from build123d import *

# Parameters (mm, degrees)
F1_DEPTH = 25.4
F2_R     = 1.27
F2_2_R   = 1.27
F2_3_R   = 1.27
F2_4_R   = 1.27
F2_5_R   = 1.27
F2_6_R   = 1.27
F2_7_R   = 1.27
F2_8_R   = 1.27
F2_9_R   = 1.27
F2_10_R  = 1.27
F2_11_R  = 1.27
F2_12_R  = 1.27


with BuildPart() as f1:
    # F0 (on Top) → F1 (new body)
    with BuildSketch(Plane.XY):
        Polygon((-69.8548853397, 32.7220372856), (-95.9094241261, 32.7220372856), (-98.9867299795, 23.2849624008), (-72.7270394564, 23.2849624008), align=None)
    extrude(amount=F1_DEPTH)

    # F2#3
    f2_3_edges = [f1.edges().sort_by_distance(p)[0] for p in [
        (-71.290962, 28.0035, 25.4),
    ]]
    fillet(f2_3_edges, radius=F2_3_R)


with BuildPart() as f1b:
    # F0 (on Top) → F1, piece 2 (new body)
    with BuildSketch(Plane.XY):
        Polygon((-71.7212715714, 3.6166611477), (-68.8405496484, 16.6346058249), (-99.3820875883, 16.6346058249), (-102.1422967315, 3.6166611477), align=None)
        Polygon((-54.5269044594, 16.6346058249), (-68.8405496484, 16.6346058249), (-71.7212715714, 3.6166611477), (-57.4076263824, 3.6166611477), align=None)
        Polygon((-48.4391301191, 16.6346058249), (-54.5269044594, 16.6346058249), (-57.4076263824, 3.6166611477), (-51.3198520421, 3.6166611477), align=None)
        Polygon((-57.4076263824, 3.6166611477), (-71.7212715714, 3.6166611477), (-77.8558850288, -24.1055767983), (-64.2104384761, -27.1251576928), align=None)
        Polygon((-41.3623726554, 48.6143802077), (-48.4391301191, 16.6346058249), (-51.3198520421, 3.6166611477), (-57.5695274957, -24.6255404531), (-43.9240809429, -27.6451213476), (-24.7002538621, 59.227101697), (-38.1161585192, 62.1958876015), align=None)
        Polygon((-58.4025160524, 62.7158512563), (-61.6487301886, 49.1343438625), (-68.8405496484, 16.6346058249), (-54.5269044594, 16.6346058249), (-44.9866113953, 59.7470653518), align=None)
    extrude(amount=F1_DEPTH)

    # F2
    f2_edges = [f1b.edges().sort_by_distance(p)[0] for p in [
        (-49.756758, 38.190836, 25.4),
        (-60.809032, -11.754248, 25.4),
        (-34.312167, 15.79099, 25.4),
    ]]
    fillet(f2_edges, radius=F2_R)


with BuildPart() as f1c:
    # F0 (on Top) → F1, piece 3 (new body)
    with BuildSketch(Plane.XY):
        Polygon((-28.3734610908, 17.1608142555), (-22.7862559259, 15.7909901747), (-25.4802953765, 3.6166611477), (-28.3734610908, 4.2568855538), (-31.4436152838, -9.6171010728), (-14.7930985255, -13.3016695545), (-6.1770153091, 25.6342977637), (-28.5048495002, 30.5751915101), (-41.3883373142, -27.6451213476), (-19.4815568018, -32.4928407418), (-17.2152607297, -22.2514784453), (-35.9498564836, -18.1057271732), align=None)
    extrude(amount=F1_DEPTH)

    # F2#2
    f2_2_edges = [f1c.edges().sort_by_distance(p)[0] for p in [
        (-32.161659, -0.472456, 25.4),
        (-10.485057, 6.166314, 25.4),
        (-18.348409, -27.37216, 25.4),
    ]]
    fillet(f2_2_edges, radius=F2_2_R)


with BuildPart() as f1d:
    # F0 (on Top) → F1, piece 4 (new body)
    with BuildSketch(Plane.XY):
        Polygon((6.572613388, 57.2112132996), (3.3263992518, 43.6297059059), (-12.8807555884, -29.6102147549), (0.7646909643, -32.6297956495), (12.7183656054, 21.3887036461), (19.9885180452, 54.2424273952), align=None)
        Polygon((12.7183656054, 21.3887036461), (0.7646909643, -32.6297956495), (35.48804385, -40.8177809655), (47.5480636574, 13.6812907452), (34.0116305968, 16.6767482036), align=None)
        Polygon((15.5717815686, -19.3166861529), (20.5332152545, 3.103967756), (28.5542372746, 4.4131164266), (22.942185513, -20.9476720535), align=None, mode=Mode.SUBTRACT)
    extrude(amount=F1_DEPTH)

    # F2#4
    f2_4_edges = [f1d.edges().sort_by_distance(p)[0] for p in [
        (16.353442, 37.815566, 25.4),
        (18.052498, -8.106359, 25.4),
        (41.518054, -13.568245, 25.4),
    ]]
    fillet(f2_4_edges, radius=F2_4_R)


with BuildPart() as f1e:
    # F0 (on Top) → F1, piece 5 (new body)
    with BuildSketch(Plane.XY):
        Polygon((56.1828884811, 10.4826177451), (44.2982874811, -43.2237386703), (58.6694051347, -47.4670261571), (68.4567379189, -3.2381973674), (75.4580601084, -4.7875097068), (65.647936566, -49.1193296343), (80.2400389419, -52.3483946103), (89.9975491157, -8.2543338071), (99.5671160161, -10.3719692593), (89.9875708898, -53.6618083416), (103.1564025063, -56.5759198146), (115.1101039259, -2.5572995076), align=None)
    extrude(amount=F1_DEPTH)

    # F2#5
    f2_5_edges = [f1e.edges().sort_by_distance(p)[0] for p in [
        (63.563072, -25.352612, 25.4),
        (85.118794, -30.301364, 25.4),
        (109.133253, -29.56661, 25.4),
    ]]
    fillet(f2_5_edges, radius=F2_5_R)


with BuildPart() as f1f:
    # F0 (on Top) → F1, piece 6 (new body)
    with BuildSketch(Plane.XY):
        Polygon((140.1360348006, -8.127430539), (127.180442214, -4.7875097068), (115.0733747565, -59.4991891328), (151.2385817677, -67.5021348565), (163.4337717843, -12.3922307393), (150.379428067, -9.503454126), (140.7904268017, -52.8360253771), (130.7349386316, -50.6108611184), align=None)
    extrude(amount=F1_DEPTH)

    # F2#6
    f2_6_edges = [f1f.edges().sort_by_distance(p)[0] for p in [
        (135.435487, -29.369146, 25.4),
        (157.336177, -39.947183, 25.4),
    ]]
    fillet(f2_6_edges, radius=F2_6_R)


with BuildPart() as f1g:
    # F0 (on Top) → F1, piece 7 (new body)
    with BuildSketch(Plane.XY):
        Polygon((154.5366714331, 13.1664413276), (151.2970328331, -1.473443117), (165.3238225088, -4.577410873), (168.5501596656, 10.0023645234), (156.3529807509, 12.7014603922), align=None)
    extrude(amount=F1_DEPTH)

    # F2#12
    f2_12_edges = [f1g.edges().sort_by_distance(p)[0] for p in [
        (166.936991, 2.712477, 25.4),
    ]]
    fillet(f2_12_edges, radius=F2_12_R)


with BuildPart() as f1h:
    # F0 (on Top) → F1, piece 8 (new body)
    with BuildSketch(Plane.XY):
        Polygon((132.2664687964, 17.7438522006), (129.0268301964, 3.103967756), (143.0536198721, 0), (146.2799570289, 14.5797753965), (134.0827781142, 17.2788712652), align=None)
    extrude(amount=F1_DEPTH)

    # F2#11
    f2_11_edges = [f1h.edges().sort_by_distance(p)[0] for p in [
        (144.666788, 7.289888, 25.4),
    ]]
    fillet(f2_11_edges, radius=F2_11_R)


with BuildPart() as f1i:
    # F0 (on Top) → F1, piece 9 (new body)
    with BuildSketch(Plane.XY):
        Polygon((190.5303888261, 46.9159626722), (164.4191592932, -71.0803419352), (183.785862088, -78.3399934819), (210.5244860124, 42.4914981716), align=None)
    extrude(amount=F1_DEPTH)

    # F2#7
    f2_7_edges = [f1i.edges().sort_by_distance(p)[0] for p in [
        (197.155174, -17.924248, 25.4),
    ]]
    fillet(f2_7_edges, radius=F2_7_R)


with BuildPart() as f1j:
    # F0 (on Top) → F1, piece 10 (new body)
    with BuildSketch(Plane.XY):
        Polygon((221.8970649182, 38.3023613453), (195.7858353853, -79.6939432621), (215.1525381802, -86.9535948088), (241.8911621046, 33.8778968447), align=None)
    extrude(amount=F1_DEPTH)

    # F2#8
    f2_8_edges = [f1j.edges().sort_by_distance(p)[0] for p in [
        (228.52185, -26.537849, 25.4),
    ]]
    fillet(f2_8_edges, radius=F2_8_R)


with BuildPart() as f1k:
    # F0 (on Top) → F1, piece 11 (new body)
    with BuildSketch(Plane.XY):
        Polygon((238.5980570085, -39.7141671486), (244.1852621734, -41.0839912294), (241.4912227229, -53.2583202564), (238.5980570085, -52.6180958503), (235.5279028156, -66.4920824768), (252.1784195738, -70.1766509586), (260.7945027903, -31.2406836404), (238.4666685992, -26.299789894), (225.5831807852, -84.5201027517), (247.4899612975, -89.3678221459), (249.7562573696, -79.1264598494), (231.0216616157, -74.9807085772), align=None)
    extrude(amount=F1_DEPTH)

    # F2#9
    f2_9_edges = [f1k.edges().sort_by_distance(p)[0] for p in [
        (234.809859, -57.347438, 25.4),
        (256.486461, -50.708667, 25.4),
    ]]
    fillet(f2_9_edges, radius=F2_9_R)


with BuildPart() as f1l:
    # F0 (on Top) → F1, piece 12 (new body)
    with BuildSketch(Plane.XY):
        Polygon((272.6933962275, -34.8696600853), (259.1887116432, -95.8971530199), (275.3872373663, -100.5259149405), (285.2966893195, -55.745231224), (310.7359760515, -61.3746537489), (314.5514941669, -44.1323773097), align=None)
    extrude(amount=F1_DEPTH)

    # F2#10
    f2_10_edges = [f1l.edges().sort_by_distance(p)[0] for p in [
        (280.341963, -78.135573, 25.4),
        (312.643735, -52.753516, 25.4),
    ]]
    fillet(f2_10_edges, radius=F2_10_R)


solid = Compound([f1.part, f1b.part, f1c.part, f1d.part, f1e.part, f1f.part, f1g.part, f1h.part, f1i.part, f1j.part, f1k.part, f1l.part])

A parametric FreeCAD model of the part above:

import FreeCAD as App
import Part
import Sketcher
Q = App.Units.Quantity


def edges_at(feature, points):
    """Names of the edges that pass closest to the given points."""
    edges = feature.Shape.Edges
    near = lambda p: min(range(len(edges)), key=lambda i: edges[i].distToShape(Part.Vertex(*p))[0])
    return sorted({f"Edge{near(p) + 1}" for p in points})


def add_polygon(sketch, points):
    """Adds a closed chain of lines whose ends are joined by coincident constraints."""
    first, n = sketch.GeometryCount, len(points)
    for a, b in zip(points, points[1:] + points[:1]):
        sketch.addGeometry(Part.LineSegment(App.Vector(*a, 0), App.Vector(*b, 0)), False)
    for i in range(n):
        sketch.addConstraint(Sketcher.Constraint("Coincident", first + i, 2, first + (i + 1) % n, 1))

doc = App.newDocument("Part")
params = doc.addObject("Spreadsheet::Sheet", "Params")
for row, (alias, value) in enumerate([
    ("pad1_length", "1 in"),
    ("fillet_radius", "0.05 in"),
    ("pad2_length", "1 in"),
    ("fillet2_radius", "0.05 in"),
    ("pad3_length", "1 in"),
    ("fillet3_radius", "0.05 in"),
    ("pad4_length", "1 in"),
    ("fillet4_radius", "0.05 in"),
    ("pad5_length", "1 in"),
    ("fillet5_radius", "0.05 in"),
    ("pad6_length", "1 in"),
    ("fillet6_radius", "0.05 in"),
    ("pad7_length", "1 in"),
    ("fillet7_radius", "0.05 in"),
    ("pad8_length", "1 in"),
    ("fillet8_radius", "0.05 in"),
    ("pad9_length", "1 in"),
    ("fillet9_radius", "0.05 in"),
    ("pad10_length", "1 in"),
    ("fillet10_radius", "0.05 in"),
    ("pad11_length", "1 in"),
    ("fillet11_radius", "0.05 in"),
    ("pad12_length", "1 in"),
    ("fillet12_radius", "0.05 in"),
], start=1):
    params.set(f"A{row}", alias)
    params.set(f"B{row}", "=" + value)
    params.setAlias(f"B{row}", alias)

body = doc.addObject("PartDesign::Body", "Body")

# Sketch on XY plane
sketch1 = body.newObject("Sketcher::SketchObject", "Sketch")
sketch1.AttachmentSupport = (doc.getObject("XY_Plane"), [""])
sketch1.MapMode = "FlatFace"
add_polygon(sketch1, [(-70, 33), (-96, 33), (-99, 23), (-73, 23)])  # lines 0-3
sketch1.addConstraint(Sketcher.Constraint("Horizontal", 0))
sketch1.addConstraint(Sketcher.Constraint("Horizontal", 2))
sketch1.addConstraint(Sketcher.Constraint("DistanceX", 0, 2, 0, 1, Q("26.054539 mm")))
sketch1.addConstraint(Sketcher.Constraint("DistanceX", 2, 1, 2, 2, Q("26.259691 mm")))
sketch1.addConstraint(Sketcher.Constraint("DistanceX", 1, 2, -1, 1, Q("98.98673 mm")))
sketch1.addConstraint(Sketcher.Constraint("Distance", 1, Q("9.926137 mm")))
sketch1.addConstraint(Sketcher.Constraint("Distance", 3, Q("9.864464 mm")))
sketch1.addConstraint(Sketcher.Constraint("DistanceY", -1, 1, 0, 2, Q("32.722037 mm")))
pad1 = body.newObject("PartDesign::Pad", "Pad")
pad1.Profile = sketch1
pad1.setExpression("Length", "Params.pad1_length")
doc.recompute()

fillet = body.newObject("PartDesign::Fillet", "Fillet")
fillet.Base = (pad1, edges_at(pad1, [(-71.291, 28.003, 25.4)]))
fillet.setExpression("Radius", "Params.fillet_radius")
body2 = doc.addObject("PartDesign::Body", "Body001")

# Sketch on XY plane
sketch2 = body2.newObject("Sketcher::SketchObject", "Sketch001")
sketch2.AttachmentSupport = (doc.getObject("XY_Plane001"), [""])
sketch2.MapMode = "FlatFace"
add_polygon(sketch2, [(-99.382088, 16.634606), (-102.142297, 3.616661), (-71.721272, 3.616661), (-77.855885, -24.105577), (-64.210438, -27.125158), (-57.407626, 3.616661), (-51.319852, 3.616661), (-57.569527, -24.62554), (-43.924081, -27.645121), (-24.700254, 59.227102), (-38.116159, 62.195888), (-41.362373, 48.61438), (-48.43913, 16.634606), (-54.526904, 16.634606), (-44.986611, 59.747065), (-58.402516, 62.715851), (-61.64873, 49.134344), (-68.84055, 16.634606)])  # lines 0-17
sketch2.addConstraint(Sketcher.Constraint("Horizontal", 1))
sketch2.addConstraint(Sketcher.Constraint("Horizontal", 5))
sketch2.addConstraint(Sketcher.Constraint("Horizontal", 12))
sketch2.addConstraint(Sketcher.Constraint("Horizontal", 17))
sketch2.addConstraint(Sketcher.Constraint("Perpendicular", 2, 3))
sketch2.addConstraint(Sketcher.Constraint("Perpendicular", 3, 4))
sketch2.addConstraint(Sketcher.Constraint("Parallel", 4, 6))
sketch2.addConstraint(Sketcher.Constraint("Perpendicular", 6, 7))
sketch2.addConstraint(Sketcher.Constraint("Perpendicular", 7, 8))
sketch2.addConstraint(Sketcher.Constraint("Perpendicular", 8, 9))
sketch2.addConstraint(Sketcher.Constraint("Perpendicular", 9, 11))
sketch2.addConstraint(Sketcher.Constraint("Parallel", 11, 13))
sketch2.addConstraint(Sketcher.Constraint("Perpendicular", 13, 14))
sketch2.addConstraint(Sketcher.Constraint("Parallel", 10, 15))
sketch2.addConstraint(Sketcher.Constraint("Perpendicular", 14, 16))
sketch2.addConstraint(Sketcher.Constraint("Horizontal", 1, 2, 4, 2))
sketch2.addConstraint(Sketcher.Constraint("Horizontal", 12, 2, 16, 2))
sketch2.addConstraint(Sketcher.Constraint("Equal", 5, 12))
sketch2.addConstraint(Sketcher.Constraint("Equal", 3, 7))
sketch2.addConstraint(Sketcher.Constraint("Equal", 9, 14))
sketch2.addConstraint(Sketcher.Constraint("Equal", 10, 15))
sketch2.addConstraint(Sketcher.Constraint("DistanceY", -1, 1, 8, 2, Q("59.227102 mm")))
sketch2.addConstraint(Sketcher.Constraint("DistanceX", 6, 2, 4, 2, Q("0.161901 mm")))
sketch2.addConstraint(Sketcher.Constraint("DistanceY", 6, 2, 4, 2, Q("28.242202 mm")))
sketch2.addConstraint(Sketcher.Constraint("DistanceX", 5, 2, 8, 2, Q("26.619598 mm")))
sketch2.addConstraint(Sketcher.Constraint("DistanceX", 1, 2, 10, 2, Q("30.358899 mm")))
sketch2.addConstraint(Sketcher.Constraint("Distance", 6, Q("28.925428 mm")))
sketch2.addConstraint(Sketcher.Constraint("Distance", 8, Q("88.973809 mm")))
sketch2.addConstraint(Sketcher.Constraint("Distance", 9, Q("13.740458 mm")))
sketch2.addConstraint(Sketcher.Constraint("Distance", 10, Q("13.96407 mm")))
sketch2.addConstraint(Sketcher.Constraint("Distance", 11, Q("32.753419 mm")))
sketch2.addConstraint(Sketcher.Constraint("Distance", 16, Q("33.285962 mm")))
sketch2.addConstraint(Sketcher.Constraint("DistanceX", 1, 1, 1, 2, Q("30.421025 mm")))
sketch2.addConstraint(Sketcher.Constraint("DistanceX", 17, 2, 17, 1, Q("30.541538 mm")))
sketch2.addConstraint(Sketcher.Constraint("DistanceX", 1, 2, -1, 1, Q("71.721272 mm")))
sketch2.addConstraint(Sketcher.Constraint("DistanceX", 3, 2, -1, 1, Q("64.210438 mm")))
pad2 = body2.newObject("PartDesign::Pad", "Pad001")
pad2.Profile = sketch2
pad2.setExpression("Length", "Params.pad2_length")
doc.recompute()

fillet2 = body2.newObject("PartDesign::Fillet", "Fillet001")
fillet2.Base = (pad2, edges_at(pad2, [(-49.757, 38.191, 25.4), (-60.809, -11.754, 25.4), (-34.312, 15.791, 25.4)]))
fillet2.setExpression("Radius", "Params.fillet2_radius")
body3 = doc.addObject("PartDesign::Body", "Body002")

# Sketch on XY plane
sketch3 = body3.newObject("Sketcher::SketchObject", "Sketch002")
sketch3.AttachmentSupport = (doc.getObject("XY_Plane002"), [""])
sketch3.MapMode = "FlatFace"
add_polygon(sketch3, [(-28.4, 17.2), (-22.8, 15.8), (-25.5, 3.6), (-28.4, 4.3), (-31.4, -9.6), (-14.8, -13.3), (-6.2, 25.6), (-28.5, 30.6), (-41.4, -27.6), (-19.5, -32.5), (-17.2, -22.3), (-35.9, -18.1)])  # lines 0-11
sketch3.addConstraint(Sketcher.Constraint("Perpendicular", 1, 2))
sketch3.addConstraint(Sketcher.Constraint("Perpendicular", 2, 3))
sketch3.addConstraint(Sketcher.Constraint("Perpendicular", 3, 4))
sketch3.addConstraint(Sketcher.Constraint("Perpendicular", 4, 5))
sketch3.addConstraint(Sketcher.Constraint("Perpendicular", 5, 6))
sketch3.addConstraint(Sketcher.Constraint("Perpendicular", 6, 7))
sketch3.addConstraint(Sketcher.Constraint("Perpendicular", 7, 8))
sketch3.addConstraint(Sketcher.Constraint("Perpendicular", 8, 9))
sketch3.addConstraint(Sketcher.Constraint("Perpendicular", 9, 10))
sketch3.addConstraint(Sketcher.Constraint("Vertical", 2, 2, 11, 2))
sketch3.addConstraint(Sketcher.Constraint("DistanceY", 3, 2, -1, 1, Q("9.617101 mm")))
sketch3.addConstraint(Sketcher.Constraint("DistanceX", 4, 2, -1, 1, Q("14.793099 mm")))
sketch3.addConstraint(Sketcher.Constraint("DistanceX", 3, 2, 5, 2, Q("25.2666 mm")))
sketch3.addConstraint(Sketcher.Constraint("DistanceY", 3, 2, 5, 2, Q("35.251399 mm")))
sketch3.addConstraint(Sketcher.Constraint("DistanceY", 0, 2, 6, 2, Q("14.784201 mm")))
sketch3.addConstraint(Sketcher.Constraint("DistanceY", 8, 2, 1, 2, Q("36.109502 mm")))
sketch3.addConstraint(Sketcher.Constraint("DistanceX", 10, 2, 8, 2, Q("16.4683 mm")))
sketch3.addConstraint(Sketcher.Constraint("Distance", 3, Q("14.209622 mm")))
sketch3.addConstraint(Sketcher.Constraint("Distance", 4, Q("17.053321 mm")))
sketch3.addConstraint(Sketcher.Constraint("Distance", 7, Q("59.628761 mm")))
sketch3.addConstraint(Sketcher.Constraint("Distance", 9, Q("10.489118 mm")))
sketch3.addConstraint(Sketcher.Constraint("Distance", 11, Q("36.071189 mm")))
sketch3.addConstraint(Sketcher.Constraint("DistanceY", -1, 1, 0, 2, Q("15.79099 mm")))
sketch3.addConstraint(Sketcher.Constraint("DistanceY", -1, 1, 1, 2, Q("3.616661 mm")))
pad3 = body3.newObject("PartDesign::Pad", "Pad002")
pad3.Profile = sketch3
pad3.setExpression("Length", "Params.pad3_length")
doc.recompute()

fillet3 = body3.newObject("PartDesign::Fillet", "Fillet002")
fillet3.Base = (pad3, edges_at(pad3, [(-32.162, -0.472, 25.4), (-10.485, 6.166, 25.4), (-18.348, -27.372, 25.4)]))
fillet3.setExpression("Radius", "Params.fillet3_radius")
body4 = doc.addObject("PartDesign::Body", "Body003")

# Sketch on XY plane
sketch4 = body4.newObject("Sketcher::SketchObject", "Sketch003")
sketch4.AttachmentSupport = (doc.getObject("XY_Plane003"), [""])
sketch4.MapMode = "FlatFace"
add_polygon(sketch4, [(7, 57), (3, 44), (-13, -30), (1, -33), (35, -41), (48, 14), (13, 21), (20, 54)])  # lines 0-7
add_polygon(sketch4, [(23, -21), (16, -19), (21, 3), (29, 4)])  # lines 8-11
sketch4.addConstraint(Sketcher.Constraint("Perpendicular", 1, 2))
sketch4.addConstraint(Sketcher.Constraint("Perpendicular", 2, 4))
sketch4.addConstraint(Sketcher.Constraint("Perpendicular", 4, 5))
sketch4.addConstraint(Sketcher.Constraint("Perpendicular", 5, 6))
sketch4.addConstraint(Sketcher.Constraint("Perpendicular", 6, 7))
sketch4.addConstraint(Sketcher.Constraint("Parallel", 7, 8))
sketch4.addConstraint(Sketcher.Constraint("Perpendicular", 8, 9))
sketch4.addConstraint(Sketcher.Constraint("Parallel", 9, 11))
sketch4.addConstraint(Sketcher.Constraint("DistanceX", -1, 1, 0, 2, Q("3.326399 mm")))
sketch4.addConstraint(Sketcher.Constraint("DistanceY", 2, 2, 0, 2, Q("76.259502 mm")))
sketch4.addConstraint(Sketcher.Constraint("DistanceX", 1, 2, 3, 2, Q("48.368799 mm")))
sketch4.addConstraint(Sketcher.Constraint("DistanceX", 5, 2, 4, 2, Q("34.829698 mm")))
sketch4.addConstraint(Sketcher.Constraint("DistanceY", 2, 2, 5, 2, Q("54.018499 mm")))
sketch4.addConstraint(Sketcher.Constraint("Distance", 0, Q("13.96407 mm")))
sketch4.addConstraint(Sketcher.Constraint("Distance", 1, Q("75.011718 mm")))
sketch4.addConstraint(Sketcher.Constraint("Distance", 6, Q("33.648511 mm")))
sketch4.addConstraint(Sketcher.Constraint("Distance", 7, Q("13.740458 mm")))
sketch4.addConstraint(Sketcher.Constraint("Distance", 11, Q("25.974309 mm")))
sketch4.addConstraint(Sketcher.Constraint("DistanceX", -1, 1, 2, 2, Q("0.764691 mm")))
sketch4.addConstraint(Sketcher.Constraint("DistanceY", 3, 2, -1, 1, Q("40.817781 mm")))
sketch4.addConstraint(Sketcher.Constraint("DistanceX", -1, 1, 8, 2, Q("15.571782 mm")))
sketch4.addConstraint(Sketcher.Constraint("DistanceY", 2, 2, 8, 2, Q("13.313109 mm")))
sketch4.addConstraint(Sketcher.Constraint("DistanceX", 5, 2, 9, 2, Q("7.81485 mm")))
sketch4.addConstraint(Sketcher.Constraint("DistanceY", 9, 2, 10, 2, Q("1.309149 mm")))
pad4 = body4.newObject("PartDesign::Pad", "Pad003")
pad4.Profile = sketch4
pad4.setExpression("Length", "Params.pad4_length")
doc.recompute()

fillet4 = body4.newObject("PartDesign::Fillet", "Fillet003")
fillet4.Base = (pad4, edges_at(pad4, [(16.353, 37.816, 25.4), (18.052, -8.106, 25.4), (41.518, -13.568, 25.4)]))
fillet4.setExpression("Radius", "Params.fillet4_radius")
body5 = doc.addObject("PartDesign::Body", "Body004")

# Sketch on XY plane
sketch5 = body5.newObject("Sketcher::SketchObject", "Sketch004")
sketch5.AttachmentSupport = (doc.getObject("XY_Plane004"), [""])
sketch5.MapMode = "FlatFace"
add_polygon(sketch5, [(56.182888, 10.482618), (44.298287, -43.223739), (58.669405, -47.467026), (68.456738, -3.238197), (75.45806, -4.78751), (65.647937, -49.11933), (80.240039, -52.348395), (89.997549, -8.254334), (99.567116, -10.371969), (89.987571, -53.661808), (103.156403, -56.57592), (115.110104, -2.5573)])  # lines 0-11
sketch5.addConstraint(Sketcher.Constraint("Distance", 2, Q("45.298799 mm")))
sketch5.addConstraint(Sketcher.Constraint("DistanceY", 10, 2, -1, 1, Q("2.5573 mm")))
sketch5.addConstraint(Sketcher.Constraint("DistanceX", 4, 2, 2, 2, Q("2.808801 mm")))
sketch5.addConstraint(Sketcher.Constraint("DistanceX", 2, 2, 5, 2, Q("11.783301 mm")))
sketch5.addConstraint(Sketcher.Constraint("DistanceX", 9, 2, 10, 2, Q("11.953701 mm")))
sketch5.addConstraint(Sketcher.Constraint("DistanceX", 0, 2, 11, 2, Q("11.884601 mm")))
sketch5.addConstraint(Sketcher.Constraint("Distance", 4, Q("45.404282 mm")))
sketch5.addConstraint(Sketcher.Constraint("Distance", 5, Q("14.94511 mm")))
sketch5.addConstraint(Sketcher.Constraint("Distance", 6, Q("45.160771 mm")))
sketch5.addConstraint(Sketcher.Constraint("Distance", 7, Q("9.801071 mm")))
sketch5.addConstraint(Sketcher.Constraint("Distance", 10, Q("55.325422 mm")))
sketch5.addConstraint(Sketcher.Constraint("DistanceY", 0, 2, -1, 1, Q("43.223739 mm")))
sketch5.addConstraint(Sketcher.Constraint("DistanceX", -1, 1, 3, 2, Q("75.45806 mm")))
sketch5.addConstraint(Sketcher.Constraint("DistanceY", 3, 2, -1, 1, Q("4.78751 mm")))
sketch5.addConstraint(Sketcher.Constraint("DistanceY", 4, 2, -1, 1, Q("49.11933 mm")))
sketch5.addConstraint(Sketcher.Constraint("DistanceX", -1, 1, 6, 2, Q("89.997549 mm")))
sketch5.addConstraint(Sketcher.Constraint("DistanceY", 7, 2, -1, 1, Q("10.371969 mm")))
sketch5.addConstraint(Sketcher.Constraint("DistanceX", -1, 1, 8, 2, Q("89.987571 mm")))
sketch5.addConstraint(Sketcher.Constraint("DistanceY", 8, 2, -1, 1, Q("53.661808 mm")))
sketch5.addConstraint(Sketcher.Constraint("DistanceX", -1, 1, 11, 2, Q("56.182888 mm")))
sketch5.addConstraint(Sketcher.Constraint("DistanceY", 1, 2, 2, 2, Q("44.228829 mm")))
sketch5.addConstraint(Sketcher.Constraint("DistanceY", 0, 2, 2, 2, Q("39.985541 mm")))
sketch5.addConstraint(Sketcher.Constraint("DistanceX", 8, 2, 9, 2, Q("13.168832 mm")))
sketch5.addConstraint(Sketcher.Constraint("DistanceY", 6, 2, 11, 2, Q("18.736952 mm")))
pad5 = body5.newObject("PartDesign::Pad", "Pad004")
pad5.Profile = sketch5
pad5.setExpression("Length", "Params.pad5_length")
doc.recompute()

fillet5 = body5.newObject("PartDesign::Fillet", "Fillet004")
fillet5.Base = (pad5, edges_at(pad5, [(63.563, -25.353, 25.4), (85.119, -30.301, 25.4), (109.133, -29.567, 25.4)]))
fillet5.setExpression("Radius", "Params.fillet5_radius")
body6 = doc.addObject("PartDesign::Body", "Body005")

# Sketch on XY plane
sketch6 = body6.newObject("Sketcher::SketchObject", "Sketch005")
sketch6.AttachmentSupport = (doc.getObject("XY_Plane005"), [""])
sketch6.MapMode = "FlatFace"
add_polygon(sketch6, [(140, -8), (127, -5), (115, -59), (151, -68), (163, -12), (150, -10), (141, -53), (131, -51)])  # lines 0-7
sketch6.addConstraint(Sketcher.Constraint("Perpendicular", 1, 2))
sketch6.addConstraint(Sketcher.Constraint("Perpendicular", 2, 3))
sketch6.addConstraint(Sketcher.Constraint("Perpendicular", 3, 4))
sketch6.addConstraint(Sketcher.Constraint("Perpendicular", 4, 5))
sketch6.addConstraint(Sketcher.Constraint("Perpendicular", 5, 6))
sketch6.addConstraint(Sketcher.Constraint("Perpendicular", 6, 7))
sketch6.addConstraint(Sketcher.Constraint("DistanceX", 5, 2, 4, 2, Q("9.589001 mm")))
sketch6.addConstraint(Sketcher.Constraint("DistanceY", 3, 2, 7, 2, Q("4.2648 mm")))
sketch6.addConstraint(Sketcher.Constraint("Distance", 0, Q("13.37918 mm")))
sketch6.addConstraint(Sketcher.Constraint("Distance", 4, Q("13.37015 mm")))
sketch6.addConstraint(Sketcher.Constraint("Distance", 5, Q("44.380859 mm")))
sketch6.addConstraint(Sketcher.Constraint("DistanceY", 0, 2, -1, 1, Q("4.78751 mm")))
sketch6.addConstraint(Sketcher.Constraint("DistanceY", 1, 2, -1, 1, Q("59.499189 mm")))
sketch6.addConstraint(Sketcher.Constraint("DistanceX", -1, 1, 2, 2, Q("151.238582 mm")))
sketch6.addConstraint(Sketcher.Constraint("DistanceX", -1, 1, 3, 2, Q("163.433772 mm")))
sketch6.addConstraint(Sketcher.Constraint("DistanceY", 3, 2, -1, 1, Q("12.392231 mm")))
pad6 = body6.newObject("PartDesign::Pad", "Pad005")
pad6.Profile = sketch6
pad6.setExpression("Length", "Params.pad6_length")
doc.recompute()

fillet6 = body6.newObject("PartDesign::Fillet", "Fillet005")
fillet6.Base = (pad6, edges_at(pad6, [(135.435, -29.369, 25.4), (157.336, -39.947, 25.4)]))
fillet6.setExpression("Radius", "Params.fillet6_radius")
body7 = doc.addObject("PartDesign::Body", "Body006")

# Sketch on XY plane
sketch7 = body7.newObject("Sketcher::SketchObject", "Sketch006")
sketch7.AttachmentSupport = (doc.getObject("XY_Plane006"), [""])
sketch7.MapMode = "FlatFace"
add_polygon(sketch7, [(154.5, 13.2), (151.3, -1.5), (165.3, -4.6), (168.6, 10), (156.4, 12.7)])  # lines 0-4
sketch7.addConstraint(Sketcher.Constraint("Perpendicular", 0, 1))
sketch7.addConstraint(Sketcher.Constraint("Perpendicular", 1, 2))
sketch7.addConstraint(Sketcher.Constraint("Perpendicular", 2, 3))
sketch7.addConstraint(Sketcher.Constraint("Distance", 1, Q("14.366121 mm")))
sketch7.addConstraint(Sketcher.Constraint("Distance", 3, Q("12.492249 mm")))
sketch7.addConstraint(Sketcher.Constraint("DistanceY", 1, 2, -1, 1, Q("4.577411 mm")))
sketch7.addConstraint(Sketcher.Constraint("DistanceX", -1, 1, 2, 2, Q("168.55016 mm")))
sketch7.addConstraint(Sketcher.Constraint("DistanceX", -1, 1, 3, 2, Q("156.352981 mm")))
sketch7.addConstraint(Sketcher.Constraint("DistanceY", -1, 1, 3, 2, Q("12.70146 mm")))
sketch7.addConstraint(Sketcher.Constraint("DistanceX", -1, 1, 4, 2, Q("154.536671 mm")))
pad7 = body7.newObject("PartDesign::Pad", "Pad006")
pad7.Profile = sketch7
pad7.setExpression("Length", "Params.pad7_length")
doc.recompute()

fillet7 = body7.newObject("PartDesign::Fillet", "Fillet006")
fillet7.Base = (pad7, edges_at(pad7, [(166.937, 2.712, 25.4)]))
fillet7.setExpression("Radius", "Params.fillet7_radius")
body8 = doc.addObject("PartDesign::Body", "Body007")

# Sketch on XY plane
sketch8 = body8.newObject("Sketcher::SketchObject", "Sketch007")
sketch8.AttachmentSupport = (doc.getObject("XY_Plane007"), [""])
sketch8.MapMode = "FlatFace"
add_polygon(sketch8, [(132.3, 17.7), (129, 3.1), (143.1, 0), (146.3, 14.6), (134.1, 17.3)])  # lines 0-4
sketch8.addConstraint(Sketcher.Constraint("PointOnObject", 1, 2, -1))
sketch8.addConstraint(Sketcher.Constraint("Perpendicular", 0, 1))
sketch8.addConstraint(Sketcher.Constraint("Perpendicular", 1, 2))
sketch8.addConstraint(Sketcher.Constraint("Perpendicular", 2, 3))
sketch8.addConstraint(Sketcher.Constraint("Distance", 1, Q("14.366121 mm")))
sketch8.addConstraint(Sketcher.Constraint("Distance", 3, Q("12.492249 mm")))
sketch8.addConstraint(Sketcher.Constraint("DistanceX", -1, 1, 0, 2, Q("129.02683 mm")))
sketch8.addConstraint(Sketcher.Constraint("DistanceX", -1, 1, 1, 2, Q("143.05362 mm")))
sketch8.addConstraint(Sketcher.Constraint("DistanceX", -1, 1, 3, 2, Q("134.082778 mm")))
sketch8.addConstraint(Sketcher.Constraint("DistanceX", -1, 1, 4, 2, Q("132.266469 mm")))
pad8 = body8.newObject("PartDesign::Pad", "Pad007")
pad8.Profile = sketch8
pad8.setExpression("Length", "Params.pad8_length")
doc.recompute()

fillet8 = body8.newObject("PartDesign::Fillet", "Fillet007")
fillet8.Base = (pad8, edges_at(pad8, [(144.667, 7.29, 25.4)]))
fillet8.setExpression("Radius", "Params.fillet8_radius")
body9 = doc.addObject("PartDesign::Body", "Body008")

# Sketch on XY plane
sketch9 = body9.newObject("Sketcher::SketchObject", "Sketch008")
sketch9.AttachmentSupport = (doc.getObject("XY_Plane008"), [""])
sketch9.MapMode = "FlatFace"
add_polygon(sketch9, [(191, 47), (164, -71), (184, -78), (211, 42)])  # lines 0-3
sketch9.addConstraint(Sketcher.Constraint("Parallel", 0, 2))
sketch9.addConstraint(Sketcher.Constraint("Perpendicular", 2, 3))
sketch9.addConstraint(Sketcher.Constraint("DistanceY", -1, 1, 2, 2, Q("42.491498 mm")))
sketch9.addConstraint(Sketcher.Constraint("Distance", 2, Q("123.75461 mm")))
sketch9.addConstraint(Sketcher.Constraint("Distance", 3, Q("20.477788 mm")))
sketch9.addConstraint(Sketcher.Constraint("DistanceX", -1, 1, 0, 2, Q("164.419159 mm")))
sketch9.addConstraint(Sketcher.Constraint("DistanceY", 0, 2, -1, 1, Q("71.080342 mm")))
sketch9.addConstraint(Sketcher.Constraint("DistanceX", -1, 1, 3, 2, Q("190.530389 mm")))
pad9 = body9.newObject("PartDesign::Pad", "Pad008")
pad9.Profile = sketch9
pad9.setExpression("Length", "Params.pad9_length")
doc.recompute()

fillet9 = body9.newObject("PartDesign::Fillet", "Fillet008")
fillet9.Base = (pad9, edges_at(pad9, [(197.155, -17.924, 25.4)]))
fillet9.setExpression("Radius", "Params.fillet9_radius")
body10 = doc.addObject("PartDesign::Body", "Body009")

# Sketch on XY plane
sketch10 = body10.newObject("Sketcher::SketchObject", "Sketch009")
sketch10.AttachmentSupport = (doc.getObject("XY_Plane009"), [""])
sketch10.MapMode = "FlatFace"
add_polygon(sketch10, [(222, 38), (196, -80), (215, -87), (242, 34)])  # lines 0-3
sketch10.addConstraint(Sketcher.Constraint("Parallel", 0, 2))
sketch10.addConstraint(Sketcher.Constraint("Perpendicular", 2, 3))
sketch10.addConstraint(Sketcher.Constraint("Distance", 2, Q("123.75461 mm")))
sketch10.addConstraint(Sketcher.Constraint("Distance", 3, Q("20.477788 mm")))
sketch10.addConstraint(Sketcher.Constraint("DistanceX", -1, 1, 1, 2, Q("215.152538 mm")))
sketch10.addConstraint(Sketcher.Constraint("DistanceY", -1, 1, 3, 2, Q("38.302361 mm")))
sketch10.addConstraint(Sketcher.Constraint("DistanceY", 1, 2, 0, 2, Q("7.259652 mm")))
sketch10.addConstraint(Sketcher.Constraint("DistanceY", 0, 2, 2, 2, Q("113.57184 mm")))
pad10 = body10.newObject("PartDesign::Pad", "Pad009")
pad10.Profile = sketch10
pad10.setExpression("Length", "Params.pad10_length")
doc.recompute()

fillet10 = body10.newObject("PartDesign::Fillet", "Fillet009")
fillet10.Base = (pad10, edges_at(pad10, [(228.522, -26.538, 25.4)]))
fillet10.setExpression("Radius", "Params.fillet10_radius")
body11 = doc.addObject("PartDesign::Body", "Body010")

# Sketch on XY plane
sketch11 = body11.newObject("Sketcher::SketchObject", "Sketch010")
sketch11.AttachmentSupport = (doc.getObject("XY_Plane010"), [""])
sketch11.MapMode = "FlatFace"
add_polygon(sketch11, [(238.6, -39.7), (244.2, -41.1), (241.5, -53.3), (238.6, -52.6), (235.5, -66.5), (252.2, -70.2), (260.8, -31.2), (238.5, -26.3), (225.6, -84.5), (247.5, -89.4), (249.8, -79.1), (231, -75)])  # lines 0-11
sketch11.addConstraint(Sketcher.Constraint("Perpendicular", 1, 2))
sketch11.addConstraint(Sketcher.Constraint("Perpendicular", 2, 3))
sketch11.addConstraint(Sketcher.Constraint("Perpendicular", 3, 4))
sketch11.addConstraint(Sketcher.Constraint("Perpendicular", 4, 5))
sketch11.addConstraint(Sketcher.Constraint("Perpendicular", 5, 6))
sketch11.addConstraint(Sketcher.Constraint("Perpendicular", 6, 7))
sketch11.addConstraint(Sketcher.Constraint("Perpendicular", 7, 8))
sketch11.addConstraint(Sketcher.Constraint("Perpendicular", 8, 9))
sketch11.addConstraint(Sketcher.Constraint("Perpendicular", 9, 10))
sketch11.addConstraint(Sketcher.Constraint("Vertical", 2, 2, 11, 2))
sketch11.addConstraint(Sketcher.Constraint("DistanceX", -1, 1, 5, 2, Q("10.2675001 in")))
sketch11.addConstraint(Sketcher.Constraint("DistanceX", 3, 2, 5, 2, Q("25.2666 mm")))
sketch11.addConstraint(Sketcher.Constraint("DistanceY", 3, 2, 5, 2, Q("35.251399 mm")))
sketch11.addConstraint(Sketcher.Constraint("DistanceY", 0, 2, 6, 2, Q("14.784201 mm")))
sketch11.addConstraint(Sketcher.Constraint("DistanceY", 8, 2, 1, 2, Q("36.109502 mm")))
sketch11.addConstraint(Sketcher.Constraint("DistanceX", 10, 2, 8, 2, Q("16.4683 mm")))
sketch11.addConstraint(Sketcher.Constraint("Distance", 3, Q("14.209622 mm")))
sketch11.addConstraint(Sketcher.Constraint("Distance", 4, Q("17.053321 mm")))
sketch11.addConstraint(Sketcher.Constraint("Distance", 7, Q("59.628761 mm")))
sketch11.addConstraint(Sketcher.Constraint("Distance", 9, Q("10.489118 mm")))
sketch11.addConstraint(Sketcher.Constraint("Distance", 11, Q("36.071189 mm")))
sketch11.addConstraint(Sketcher.Constraint("DistanceY", 0, 2, -1, 1, Q("41.083991 mm")))
sketch11.addConstraint(Sketcher.Constraint("DistanceY", 1, 2, -1, 1, Q("53.25832 mm")))
sketch11.addConstraint(Sketcher.Constraint("DistanceY", 4, 2, -1, 1, Q("70.176651 mm")))
pad11 = body11.newObject("PartDesign::Pad", "Pad010")
pad11.Profile = sketch11
pad11.setExpression("Length", "Params.pad11_length")
doc.recompute()

fillet11 = body11.newObject("PartDesign::Fillet", "Fillet010")
fillet11.Base = (pad11, edges_at(pad11, [(234.81, -57.347, 25.4), (256.486, -50.709, 25.4)]))
fillet11.setExpression("Radius", "Params.fillet11_radius")
body12 = doc.addObject("PartDesign::Body", "Body011")

# Sketch on XY plane
sketch12 = body12.newObject("Sketcher::SketchObject", "Sketch011")
sketch12.AttachmentSupport = (doc.getObject("XY_Plane011"), [""])
sketch12.MapMode = "FlatFace"
add_polygon(sketch12, [(273, -35), (259, -96), (275, -101), (285, -56), (311, -61), (315, -44)])  # lines 0-5
sketch12.addConstraint(Sketcher.Constraint("Parallel", 0, 2))
sketch12.addConstraint(Sketcher.Constraint("Perpendicular", 2, 3))
sketch12.addConstraint(Sketcher.Constraint("Perpendicular", 3, 4))
sketch12.addConstraint(Sketcher.Constraint("Perpendicular", 4, 5))
sketch12.addConstraint(Sketcher.Constraint("DistanceX", -1, 1, 3, 2, Q("12.2336998 in")))
sketch12.addConstraint(Sketcher.Constraint("DistanceX", 1, 2, 4, 2, Q("1.5418999 in")))
sketch12.addConstraint(Sketcher.Constraint("DistanceY", 0, 2, 3, 2, Q("34.522499 mm")))
sketch12.addConstraint(Sketcher.Constraint("Distance", 0, Q("62.503851 mm")))
sketch12.addConstraint(Sketcher.Constraint("Distance", 1, Q("16.846889 mm")))
sketch12.addConstraint(Sketcher.Constraint("DistanceX", -1, 1, 0, 2, Q("259.188712 mm")))
sketch12.addConstraint(Sketcher.Constraint("DistanceX", -1, 1, 2, 2, Q("285.296689 mm")))
sketch12.addConstraint(Sketcher.Constraint("DistanceY", 2, 2, -1, 1, Q("55.745231 mm")))
pad12 = body12.newObject("PartDesign::Pad", "Pad011")
pad12.Profile = sketch12
pad12.setExpression("Length", "Params.pad12_length")
doc.recompute()

fillet12 = body12.newObject("PartDesign::Fillet", "Fillet011")
fillet12.Base = (pad12, edges_at(pad12, [(280.342, -78.136, 25.4), (312.644, -52.754, 25.4)]))
fillet12.setExpression("Radius", "Params.fillet12_radius")

doc.recompute()
